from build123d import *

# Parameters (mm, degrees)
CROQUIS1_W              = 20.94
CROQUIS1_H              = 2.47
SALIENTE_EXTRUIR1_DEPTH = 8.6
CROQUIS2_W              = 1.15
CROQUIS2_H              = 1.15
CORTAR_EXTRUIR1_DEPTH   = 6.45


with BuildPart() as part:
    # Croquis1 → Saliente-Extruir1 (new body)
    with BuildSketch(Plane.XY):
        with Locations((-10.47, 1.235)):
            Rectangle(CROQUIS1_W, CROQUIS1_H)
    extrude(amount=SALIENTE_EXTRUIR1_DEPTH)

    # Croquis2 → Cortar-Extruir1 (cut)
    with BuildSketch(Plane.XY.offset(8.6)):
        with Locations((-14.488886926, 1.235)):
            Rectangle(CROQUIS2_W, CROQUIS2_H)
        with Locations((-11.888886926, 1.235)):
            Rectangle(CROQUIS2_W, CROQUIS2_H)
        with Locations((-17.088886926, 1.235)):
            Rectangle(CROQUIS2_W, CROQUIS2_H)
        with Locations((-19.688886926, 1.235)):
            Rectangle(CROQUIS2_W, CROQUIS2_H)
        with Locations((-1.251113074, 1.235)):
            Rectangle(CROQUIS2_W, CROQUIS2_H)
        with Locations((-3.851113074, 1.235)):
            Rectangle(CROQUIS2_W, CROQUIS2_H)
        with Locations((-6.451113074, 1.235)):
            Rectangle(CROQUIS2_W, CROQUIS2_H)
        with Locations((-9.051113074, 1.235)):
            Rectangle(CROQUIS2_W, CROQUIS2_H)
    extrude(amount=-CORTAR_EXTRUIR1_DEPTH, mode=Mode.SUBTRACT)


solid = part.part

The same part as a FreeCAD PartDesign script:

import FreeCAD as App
import Part
import Sketcher
from FreeCAD import Vector
Q = App.Units.Quantity


def add_polygon(sketch, points):
    """Adds a closed chain of lines whose ends are joined by coincident constraints."""
    first, n = sketch.GeometryCount, len(points)
    for a, b in zip(points, points[1:] + points[:1]):
        sketch.addGeometry(Part.LineSegment(App.Vector(*a, 0), App.Vector(*b, 0)), False)
    for i in range(n):
        sketch.addConstraint(Sketcher.Constraint("Coincident", first + i, 2, first + (i + 1) % n, 1))

doc = App.newDocument("Part")
params = doc.addObject("Spreadsheet::Sheet", "Params")
for row, (alias, value) in enumerate([
    ("sketch1_width", "20.94 mm"),
    ("sketch1_height", "2.47 mm"),
    ("pad1_length", "8.6 mm"),
    ("sketch2_width", "1.15 mm"),
    ("pocket1_length", "6.45 mm"),
], start=1):
    params.set(f"A{row}", alias)
    params.set(f"B{row}", "=" + value)
    params.setAlias(f"B{row}", alias)

body = doc.addObject("PartDesign::Body", "Body")

# Sketch on XY plane
sketch1 = body.newObject("Sketcher::SketchObject", "Sketch")
sketch1.AttachmentSupport = (doc.getObject("XY_Plane"), [""])
sketch1.MapMode = "FlatFace"
add_polygon(sketch1, [(-20.9, 2.5), (-20.9, 0), (0, 0), (0, 2.5)])  # lines 0-3
sketch1.addConstraint(Sketcher.Constraint("Vertical", 0))
sketch1.addConstraint(Sketcher.Constraint("Horizontal", 1))
sketch1.addConstraint(Sketcher.Constraint("Vertical", 2))
sketch1.addConstraint(Sketcher.Constraint("Horizontal", 3))
sketch1.addConstraint(Sketcher.Constraint("Coincident", 1, 2, -1, 1))
sketch1.addConstraint(Sketcher.Constraint("DistanceX", 1, 1, 1, 2, Q("20.94 mm")))
sketch1.addConstraint(Sketcher.Constraint("DistanceY", 0, 2, 0, 1, Q("2.47 mm")))
sketch1.setExpression("Constraints[9]", "Params.sketch1_width")
sketch1.setExpression("Constraints[10]", "Params.sketch1_height")
pad1 = body.newObject("PartDesign::Pad", "Pad")
pad1.Profile = sketch1
pad1.setExpression("Length", "Params.pad1_length")

# Sketch on XY plane
sketch2 = body.newObject("Sketcher::SketchObject", "Sketch001")
sketch2.AttachmentSupport = (doc.getObject("XY_Plane"), [""])
sketch2.MapMode = "FlatFace"
sketch2.AttachmentOffset = App.Placement(Vector(0, 0, 8.6), App.Rotation())
add_polygon(sketch2, [(-15.1, 1.8), (-15.1, 0.7), (-13.9, 0.7), (-13.9, 1.8)])  # lines 0-3
add_polygon(sketch2, [(-12.5, 1.8), (-12.5, 0.7), (-11.3, 0.7), (-11.3, 1.8)])  # lines 4-7
add_polygon(sketch2, [(-17.7, 1.8), (-17.7, 0.7), (-16.5, 0.7), (-16.5, 1.8)])  # lines 8-11
add_polygon(sketch2, [(-20.3, 1.8), (-20.3, 0.7), (-19.1, 0.7), (-19.1, 1.8)])  # lines 12-15
add_polygon(sketch2, [(-1.8, 1.8), (-1.8, 0.7), (-0.7, 0.7), (-0.7, 1.8)])  # lines 16-19
add_polygon(sketch2, [(-4.4, 1.8), (-4.4, 0.7), (-3.3, 0.7), (-3.3, 1.8)])  # lines 20-23
add_polygon(sketch2, [(-7, 1.8), (-7, 0.7), (-5.9, 0.7), (-5.9, 1.8)])  # lines 24-27
add_polygon(sketch2, [(-9.6, 1.8), (-9.6, 0.7), (-8.5, 0.7), (-8.5, 1.8)])  # lines 28-31
sketch2.addConstraint(Sketcher.Constraint("Vertical", 0))
sketch2.addConstraint(Sketcher.Constraint("Horizontal", 1))
sketch2.addConstraint(Sketcher.Constraint("Vertical", 2))
sketch2.addConstraint(Sketcher.Constraint("Horizontal", 3))
sketch2.addConstraint(Sketcher.Constraint("Vertical", 4))
sketch2.addConstraint(Sketcher.Constraint("Horizontal", 5))
sketch2.addConstraint(Sketcher.Constraint("Vertical", 6))
sketch2.addConstraint(Sketcher.Constraint("Horizontal", 7))
sketch2.addConstraint(Sketcher.Constraint("Vertical", 8))
sketch2.addConstraint(Sketcher.Constraint("Horizontal", 9))
sketch2.addConstraint(Sketcher.Constraint("Vertical", 10))
sketch2.addConstraint(Sketcher.Constraint("Horizontal", 11))
sketch2.addConstraint(Sketcher.Constraint("Vertical", 12))
sketch2.addConstraint(Sketcher.Constraint("Horizontal", 13))
sketch2.addConstraint(Sketcher.Constraint("Vertical", 14))
sketch2.addConstraint(Sketcher.Constraint("Horizontal", 15))
sketch2.addConstraint(Sketcher.Constraint("Vertical", 16))
sketch2.addConstraint(Sketcher.Constraint("Horizontal", 17))
sketch2.addConstraint(Sketcher.Constraint("Vertical", 18))
sketch2.addConstraint(Sketcher.Constraint("Horizontal", 19))
sketch2.addConstraint(Sketcher.Constraint("Vertical", 20))
sketch2.addConstraint(Sketcher.Constraint("Horizontal", 21))
sketch2.addConstraint(Sketcher.Constraint("Vertical", 22))
sketch2.addConstraint(Sketcher.Constraint("Horizontal", 23))
sketch2.addConstraint(Sketcher.Constraint("Vertical", 24))
sketch2.addConstraint(Sketcher.Constraint("Horizontal", 25))
sketch2.addConstraint(Sketcher.Constraint("Vertical", 26))
sketch2.addConstraint(Sketcher.Constraint("Horizontal", 27))
sketch2.addConstraint(Sketcher.Constraint("Vertical", 28))
sketch2.addConstraint(Sketcher.Constraint("Horizontal", 29))
sketch2.addConstraint(Sketcher.Constraint("Vertical", 30))
sketch2.addConstraint(Sketcher.Constraint("Horizontal", 31))
sketch2.addConstraint(Sketcher.Constraint("Horizontal", 1, 2, 4, 2))
sketch2.addConstraint(Sketcher.Constraint("Horizontal", 3, 2, 6, 2))
sketch2.addConstraint(Sketcher.Constraint("Horizontal", 5, 2, 8, 2))
sketch2.addConstraint(Sketcher.Constraint("Horizontal", 7, 2, 10, 2))
sketch2.addConstraint(Sketcher.Constraint("Horizontal", 9, 2, 12, 2))
sketch2.addConstraint(Sketcher.Constraint("Horizontal", 11, 2, 14, 2))
sketch2.addConstraint(Sketcher.Constraint("Horizontal", 13, 2, 16, 2))
sketch2.addConstraint(Sketcher.Constraint("Horizontal", 15, 2, 18, 2))
sketch2.addConstraint(Sketcher.Constraint("Horizontal", 17, 2, 20, 2))
sketch2.addConstraint(Sketcher.Constraint("Horizontal", 19, 2, 22, 2))
sketch2.addConstraint(Sketcher.Constraint("Horizontal", 21, 2, 24, 2))
sketch2.addConstraint(Sketcher.Constraint("Horizontal", 23, 2, 26, 2))
sketch2.addConstraint(Sketcher.Constraint("Horizontal", 25, 2, 28, 2))
sketch2.addConstraint(Sketcher.Constraint("Horizontal", 27, 2, 30, 2))
sketch2.addConstraint(Sketcher.Constraint("Equal", 3, 5))
sketch2.addConstraint(Sketcher.Constraint("Equal", 7, 9))
sketch2.addConstraint(Sketcher.Constraint("Equal", 11, 13))
sketch2.addConstraint(Sketcher.Constraint("Equal", 15, 17))
sketch2.addConstraint(Sketcher.Constraint("Equal", 19, 21))
sketch2.addConstraint(Sketcher.Constraint("Equal", 23, 25))
sketch2.addConstraint(Sketcher.Constraint("Equal", 27, 29))
sketch2.addConstraint(Sketcher.Constraint("Equal", 31, 0))
sketch2.addConstraint(Sketcher.Constraint("DistanceX", 1, 1, 1, 2, Q("1.15 mm")))
sketch2.addConstraint(Sketcher.Constraint("DistanceX", 0, 2, 4, 2, Q("2.6 mm")))
sketch2.addConstraint(Sketcher.Constraint("DistanceX", 8, 2, 0, 2, Q("2.6 mm")))
sketch2.addConstraint(Sketcher.Constraint("DistanceX", 12, 2, 8, 2, Q("2.6 mm")))
sketch2.addConstraint(Sketcher.Constraint("DistanceX", 20, 2, 16, 2, Q("2.6 mm")))
sketch2.addConstraint(Sketcher.Constraint("DistanceX", 24, 2, 20, 2, Q("2.6 mm")))
sketch2.addConstraint(Sketcher.Constraint("DistanceX", 28, 2, 24, 2, Q("2.6 mm")))
sketch2.addConstraint(Sketcher.Constraint("DistanceY", -1, 1, 0, 2, Q("0.66 mm")))
sketch2.addConstraint(Sketcher.Constraint("DistanceX", 0, 2, -1, 1, Q("15.063887 mm")))
sketch2.addConstraint(Sketcher.Constraint("DistanceX", 16, 2, -1, 1, Q("1.826113 mm")))
sketch2.setExpression("Constraints[86]", "Params.sketch2_width")
pocket1 = body.newObject("PartDesign::Pocket", "Pocket")
pocket1.Profile = sketch2
pocket1.setExpression("Length", "Params.pocket1_length")

doc.recompute()
